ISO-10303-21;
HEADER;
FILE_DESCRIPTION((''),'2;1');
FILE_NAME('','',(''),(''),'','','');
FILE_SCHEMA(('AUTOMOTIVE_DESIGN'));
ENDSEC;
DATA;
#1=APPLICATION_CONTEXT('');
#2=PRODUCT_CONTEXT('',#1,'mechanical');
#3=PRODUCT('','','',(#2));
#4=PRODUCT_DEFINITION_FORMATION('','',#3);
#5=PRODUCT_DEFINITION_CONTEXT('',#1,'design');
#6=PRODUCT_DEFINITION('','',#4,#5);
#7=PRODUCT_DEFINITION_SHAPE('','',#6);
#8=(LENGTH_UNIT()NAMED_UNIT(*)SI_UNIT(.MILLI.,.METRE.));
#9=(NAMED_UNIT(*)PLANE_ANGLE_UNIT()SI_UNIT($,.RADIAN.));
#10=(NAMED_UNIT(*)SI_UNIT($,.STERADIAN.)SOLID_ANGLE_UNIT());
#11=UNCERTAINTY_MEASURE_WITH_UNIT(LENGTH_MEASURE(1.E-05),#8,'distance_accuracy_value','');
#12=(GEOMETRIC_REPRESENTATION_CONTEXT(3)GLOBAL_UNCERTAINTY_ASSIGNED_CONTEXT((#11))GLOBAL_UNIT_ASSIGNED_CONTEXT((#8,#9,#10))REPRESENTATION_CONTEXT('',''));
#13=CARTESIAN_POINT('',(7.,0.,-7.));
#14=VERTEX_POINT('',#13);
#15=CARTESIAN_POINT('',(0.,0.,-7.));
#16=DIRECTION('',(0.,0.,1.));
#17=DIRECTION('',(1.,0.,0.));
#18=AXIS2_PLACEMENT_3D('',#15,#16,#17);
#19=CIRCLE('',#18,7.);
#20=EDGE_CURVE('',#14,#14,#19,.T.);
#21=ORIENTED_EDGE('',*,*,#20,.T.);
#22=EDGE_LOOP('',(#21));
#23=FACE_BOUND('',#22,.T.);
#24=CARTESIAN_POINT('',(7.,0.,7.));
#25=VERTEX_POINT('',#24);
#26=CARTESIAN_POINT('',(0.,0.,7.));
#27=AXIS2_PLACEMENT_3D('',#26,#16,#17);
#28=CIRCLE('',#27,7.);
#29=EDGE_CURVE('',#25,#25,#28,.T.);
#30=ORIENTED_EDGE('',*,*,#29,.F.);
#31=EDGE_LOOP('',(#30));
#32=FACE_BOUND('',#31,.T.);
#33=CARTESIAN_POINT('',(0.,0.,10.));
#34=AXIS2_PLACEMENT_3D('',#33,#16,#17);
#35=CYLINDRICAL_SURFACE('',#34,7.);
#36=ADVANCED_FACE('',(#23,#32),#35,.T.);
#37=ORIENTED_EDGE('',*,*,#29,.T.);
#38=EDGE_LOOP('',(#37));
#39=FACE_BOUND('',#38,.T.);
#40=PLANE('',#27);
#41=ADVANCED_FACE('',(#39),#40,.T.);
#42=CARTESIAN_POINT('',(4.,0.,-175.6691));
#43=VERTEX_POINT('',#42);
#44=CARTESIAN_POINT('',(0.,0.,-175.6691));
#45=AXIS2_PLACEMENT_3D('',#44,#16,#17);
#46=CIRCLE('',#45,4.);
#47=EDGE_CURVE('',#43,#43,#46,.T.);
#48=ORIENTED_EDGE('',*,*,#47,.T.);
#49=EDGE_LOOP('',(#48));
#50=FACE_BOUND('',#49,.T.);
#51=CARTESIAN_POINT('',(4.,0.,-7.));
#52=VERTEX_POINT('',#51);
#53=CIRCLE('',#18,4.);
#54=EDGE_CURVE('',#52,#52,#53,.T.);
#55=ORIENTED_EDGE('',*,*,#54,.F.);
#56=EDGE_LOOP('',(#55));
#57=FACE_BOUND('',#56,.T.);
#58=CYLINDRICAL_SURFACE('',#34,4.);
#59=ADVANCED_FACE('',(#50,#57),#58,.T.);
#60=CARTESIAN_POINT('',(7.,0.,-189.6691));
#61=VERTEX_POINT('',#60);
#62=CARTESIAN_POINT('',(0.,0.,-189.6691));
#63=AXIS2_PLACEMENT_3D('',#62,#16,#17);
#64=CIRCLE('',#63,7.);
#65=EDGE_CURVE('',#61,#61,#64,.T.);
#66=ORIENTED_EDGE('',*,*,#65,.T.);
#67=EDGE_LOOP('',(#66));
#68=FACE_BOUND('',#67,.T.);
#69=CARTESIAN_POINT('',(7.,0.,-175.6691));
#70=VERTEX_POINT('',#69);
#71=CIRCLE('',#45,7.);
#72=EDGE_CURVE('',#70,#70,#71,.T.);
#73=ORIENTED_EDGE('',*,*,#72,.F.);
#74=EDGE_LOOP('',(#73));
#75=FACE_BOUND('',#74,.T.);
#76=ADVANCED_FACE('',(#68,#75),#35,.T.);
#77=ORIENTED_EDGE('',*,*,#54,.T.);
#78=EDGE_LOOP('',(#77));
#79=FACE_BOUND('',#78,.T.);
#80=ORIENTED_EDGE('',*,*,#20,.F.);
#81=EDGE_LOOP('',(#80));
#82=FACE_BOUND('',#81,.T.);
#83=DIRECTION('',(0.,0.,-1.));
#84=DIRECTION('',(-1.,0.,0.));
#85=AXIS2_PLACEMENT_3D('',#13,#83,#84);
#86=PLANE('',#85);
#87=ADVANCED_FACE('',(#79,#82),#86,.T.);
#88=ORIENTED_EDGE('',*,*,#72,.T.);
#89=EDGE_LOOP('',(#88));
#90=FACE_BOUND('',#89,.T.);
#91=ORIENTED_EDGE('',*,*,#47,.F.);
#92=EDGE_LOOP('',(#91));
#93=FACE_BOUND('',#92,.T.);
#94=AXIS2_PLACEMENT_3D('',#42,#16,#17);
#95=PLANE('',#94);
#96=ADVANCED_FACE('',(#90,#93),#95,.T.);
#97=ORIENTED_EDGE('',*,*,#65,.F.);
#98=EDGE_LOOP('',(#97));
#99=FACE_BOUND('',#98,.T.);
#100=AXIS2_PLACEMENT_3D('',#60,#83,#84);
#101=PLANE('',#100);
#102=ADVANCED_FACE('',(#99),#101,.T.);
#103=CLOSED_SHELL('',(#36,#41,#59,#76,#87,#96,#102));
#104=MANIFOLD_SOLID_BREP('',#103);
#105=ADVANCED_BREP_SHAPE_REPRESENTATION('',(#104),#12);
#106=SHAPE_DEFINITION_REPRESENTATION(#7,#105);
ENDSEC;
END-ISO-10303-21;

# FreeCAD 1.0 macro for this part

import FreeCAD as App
import Part
import Sketcher
Q = App.Units.Quantity

doc = App.newDocument("Part")
body = doc.addObject("PartDesign::Body", "Body")

sketch1 = body.newObject("Sketcher::SketchObject", "Sketch")
sketch1.AttachmentSupport = (doc.getObject("XZ_Plane"), [""])
sketch1.MapMode = "FlatFace"
sketch1.addGeometry(Part.LineSegment(App.Vector(0, 7, 0), App.Vector(7, 7, 0)), False)
sketch1.addGeometry(Part.LineSegment(App.Vector(7, 7, 0), App.Vector(7, -7, 0)), False)
sketch1.addGeometry(Part.LineSegment(App.Vector(7, -7, 0), App.Vector(4, -7, 0)), False)
sketch1.addGeometry(Part.LineSegment(App.Vector(4, -7, 0), App.Vector(4, -175.7, 0)), False)
sketch1.addGeometry(Part.LineSegment(App.Vector(4, -175.7, 0), App.Vector(7, -175.7, 0)), False)
sketch1.addGeometry(Part.LineSegment(App.Vector(7, -175.7, 0), App.Vector(7, -189.7, 0)), False)
sketch1.addGeometry(Part.LineSegment(App.Vector(7, -189.7, 0), App.Vector(0, -189.7, 0)), False)
sketch1.addGeometry(Part.LineSegment(App.Vector(0, -189.7, 0), App.Vector(0, 7, 0)), False)
sketch1.addConstraint(Sketcher.Constraint("Coincident", 0, 2, 1, 1))
sketch1.addConstraint(Sketcher.Constraint("Coincident", 1, 2, 2, 1))
sketch1.addConstraint(Sketcher.Constraint("Coincident", 2, 2, 3, 1))
sketch1.addConstraint(Sketcher.Constraint("Coincident", 3, 2, 4, 1))
sketch1.addConstraint(Sketcher.Constraint("Coincident", 4, 2, 5, 1))
sketch1.addConstraint(Sketcher.Constraint("Coincident", 5, 2, 6, 1))
sketch1.addConstraint(Sketcher.Constraint("Coincident", 6, 2, 7, 1))
sketch1.addConstraint(Sketcher.Constraint("Coincident", 7, 2, 0, 1))
sketch1.addConstraint(Sketcher.Constraint("Horizontal", 0))
sketch1.addConstraint(Sketcher.Constraint("Vertical", 1))
sketch1.addConstraint(Sketcher.Constraint("Horizontal", 2))
sketch1.addConstraint(Sketcher.Constraint("Vertical", 3))
sketch1.addConstraint(Sketcher.Constraint("Horizontal", 4))
sketch1.addConstraint(Sketcher.Constraint("Vertical", 5))
sketch1.addConstraint(Sketcher.Constraint("Horizontal", 6))
sketch1.addConstraint(Sketcher.Constraint("Vertical", 7))
sketch1.addConstraint(Sketcher.Constraint("PointOnObject", 6, 2, -2))
sketch1.addConstraint(Sketcher.Constraint("Vertical", 1, 2, 4, 2))
sketch1.addConstraint(Sketcher.Constraint("Equal", 1, 5))
sketch1.addConstraint(Sketcher.Constraint("DistanceX", 0, 1, 0, 2, Q("7 mm")))
sketch1.addConstraint(Sketcher.Constraint("DistanceX", 2, 2, 2, 1, Q("3 mm")))
sketch1.addConstraint(Sketcher.Constraint("DistanceY", 1, 2, 1, 1, Q("14 mm")))
sketch1.addConstraint(Sketcher.Constraint("DistanceY", -1, 1, 0, 2, Q("7 mm")))
sketch1.addConstraint(Sketcher.Constraint("DistanceY", 3, 2, 3, 1, Q("168.6691 mm")))
revolution = body.newObject("PartDesign::Revolution", "Revolution")
revolution.Profile = sketch1
revolution.ReferenceAxis = (sketch1, ["V_Axis"])
revolution.Angle = 360

doc.recompute()
